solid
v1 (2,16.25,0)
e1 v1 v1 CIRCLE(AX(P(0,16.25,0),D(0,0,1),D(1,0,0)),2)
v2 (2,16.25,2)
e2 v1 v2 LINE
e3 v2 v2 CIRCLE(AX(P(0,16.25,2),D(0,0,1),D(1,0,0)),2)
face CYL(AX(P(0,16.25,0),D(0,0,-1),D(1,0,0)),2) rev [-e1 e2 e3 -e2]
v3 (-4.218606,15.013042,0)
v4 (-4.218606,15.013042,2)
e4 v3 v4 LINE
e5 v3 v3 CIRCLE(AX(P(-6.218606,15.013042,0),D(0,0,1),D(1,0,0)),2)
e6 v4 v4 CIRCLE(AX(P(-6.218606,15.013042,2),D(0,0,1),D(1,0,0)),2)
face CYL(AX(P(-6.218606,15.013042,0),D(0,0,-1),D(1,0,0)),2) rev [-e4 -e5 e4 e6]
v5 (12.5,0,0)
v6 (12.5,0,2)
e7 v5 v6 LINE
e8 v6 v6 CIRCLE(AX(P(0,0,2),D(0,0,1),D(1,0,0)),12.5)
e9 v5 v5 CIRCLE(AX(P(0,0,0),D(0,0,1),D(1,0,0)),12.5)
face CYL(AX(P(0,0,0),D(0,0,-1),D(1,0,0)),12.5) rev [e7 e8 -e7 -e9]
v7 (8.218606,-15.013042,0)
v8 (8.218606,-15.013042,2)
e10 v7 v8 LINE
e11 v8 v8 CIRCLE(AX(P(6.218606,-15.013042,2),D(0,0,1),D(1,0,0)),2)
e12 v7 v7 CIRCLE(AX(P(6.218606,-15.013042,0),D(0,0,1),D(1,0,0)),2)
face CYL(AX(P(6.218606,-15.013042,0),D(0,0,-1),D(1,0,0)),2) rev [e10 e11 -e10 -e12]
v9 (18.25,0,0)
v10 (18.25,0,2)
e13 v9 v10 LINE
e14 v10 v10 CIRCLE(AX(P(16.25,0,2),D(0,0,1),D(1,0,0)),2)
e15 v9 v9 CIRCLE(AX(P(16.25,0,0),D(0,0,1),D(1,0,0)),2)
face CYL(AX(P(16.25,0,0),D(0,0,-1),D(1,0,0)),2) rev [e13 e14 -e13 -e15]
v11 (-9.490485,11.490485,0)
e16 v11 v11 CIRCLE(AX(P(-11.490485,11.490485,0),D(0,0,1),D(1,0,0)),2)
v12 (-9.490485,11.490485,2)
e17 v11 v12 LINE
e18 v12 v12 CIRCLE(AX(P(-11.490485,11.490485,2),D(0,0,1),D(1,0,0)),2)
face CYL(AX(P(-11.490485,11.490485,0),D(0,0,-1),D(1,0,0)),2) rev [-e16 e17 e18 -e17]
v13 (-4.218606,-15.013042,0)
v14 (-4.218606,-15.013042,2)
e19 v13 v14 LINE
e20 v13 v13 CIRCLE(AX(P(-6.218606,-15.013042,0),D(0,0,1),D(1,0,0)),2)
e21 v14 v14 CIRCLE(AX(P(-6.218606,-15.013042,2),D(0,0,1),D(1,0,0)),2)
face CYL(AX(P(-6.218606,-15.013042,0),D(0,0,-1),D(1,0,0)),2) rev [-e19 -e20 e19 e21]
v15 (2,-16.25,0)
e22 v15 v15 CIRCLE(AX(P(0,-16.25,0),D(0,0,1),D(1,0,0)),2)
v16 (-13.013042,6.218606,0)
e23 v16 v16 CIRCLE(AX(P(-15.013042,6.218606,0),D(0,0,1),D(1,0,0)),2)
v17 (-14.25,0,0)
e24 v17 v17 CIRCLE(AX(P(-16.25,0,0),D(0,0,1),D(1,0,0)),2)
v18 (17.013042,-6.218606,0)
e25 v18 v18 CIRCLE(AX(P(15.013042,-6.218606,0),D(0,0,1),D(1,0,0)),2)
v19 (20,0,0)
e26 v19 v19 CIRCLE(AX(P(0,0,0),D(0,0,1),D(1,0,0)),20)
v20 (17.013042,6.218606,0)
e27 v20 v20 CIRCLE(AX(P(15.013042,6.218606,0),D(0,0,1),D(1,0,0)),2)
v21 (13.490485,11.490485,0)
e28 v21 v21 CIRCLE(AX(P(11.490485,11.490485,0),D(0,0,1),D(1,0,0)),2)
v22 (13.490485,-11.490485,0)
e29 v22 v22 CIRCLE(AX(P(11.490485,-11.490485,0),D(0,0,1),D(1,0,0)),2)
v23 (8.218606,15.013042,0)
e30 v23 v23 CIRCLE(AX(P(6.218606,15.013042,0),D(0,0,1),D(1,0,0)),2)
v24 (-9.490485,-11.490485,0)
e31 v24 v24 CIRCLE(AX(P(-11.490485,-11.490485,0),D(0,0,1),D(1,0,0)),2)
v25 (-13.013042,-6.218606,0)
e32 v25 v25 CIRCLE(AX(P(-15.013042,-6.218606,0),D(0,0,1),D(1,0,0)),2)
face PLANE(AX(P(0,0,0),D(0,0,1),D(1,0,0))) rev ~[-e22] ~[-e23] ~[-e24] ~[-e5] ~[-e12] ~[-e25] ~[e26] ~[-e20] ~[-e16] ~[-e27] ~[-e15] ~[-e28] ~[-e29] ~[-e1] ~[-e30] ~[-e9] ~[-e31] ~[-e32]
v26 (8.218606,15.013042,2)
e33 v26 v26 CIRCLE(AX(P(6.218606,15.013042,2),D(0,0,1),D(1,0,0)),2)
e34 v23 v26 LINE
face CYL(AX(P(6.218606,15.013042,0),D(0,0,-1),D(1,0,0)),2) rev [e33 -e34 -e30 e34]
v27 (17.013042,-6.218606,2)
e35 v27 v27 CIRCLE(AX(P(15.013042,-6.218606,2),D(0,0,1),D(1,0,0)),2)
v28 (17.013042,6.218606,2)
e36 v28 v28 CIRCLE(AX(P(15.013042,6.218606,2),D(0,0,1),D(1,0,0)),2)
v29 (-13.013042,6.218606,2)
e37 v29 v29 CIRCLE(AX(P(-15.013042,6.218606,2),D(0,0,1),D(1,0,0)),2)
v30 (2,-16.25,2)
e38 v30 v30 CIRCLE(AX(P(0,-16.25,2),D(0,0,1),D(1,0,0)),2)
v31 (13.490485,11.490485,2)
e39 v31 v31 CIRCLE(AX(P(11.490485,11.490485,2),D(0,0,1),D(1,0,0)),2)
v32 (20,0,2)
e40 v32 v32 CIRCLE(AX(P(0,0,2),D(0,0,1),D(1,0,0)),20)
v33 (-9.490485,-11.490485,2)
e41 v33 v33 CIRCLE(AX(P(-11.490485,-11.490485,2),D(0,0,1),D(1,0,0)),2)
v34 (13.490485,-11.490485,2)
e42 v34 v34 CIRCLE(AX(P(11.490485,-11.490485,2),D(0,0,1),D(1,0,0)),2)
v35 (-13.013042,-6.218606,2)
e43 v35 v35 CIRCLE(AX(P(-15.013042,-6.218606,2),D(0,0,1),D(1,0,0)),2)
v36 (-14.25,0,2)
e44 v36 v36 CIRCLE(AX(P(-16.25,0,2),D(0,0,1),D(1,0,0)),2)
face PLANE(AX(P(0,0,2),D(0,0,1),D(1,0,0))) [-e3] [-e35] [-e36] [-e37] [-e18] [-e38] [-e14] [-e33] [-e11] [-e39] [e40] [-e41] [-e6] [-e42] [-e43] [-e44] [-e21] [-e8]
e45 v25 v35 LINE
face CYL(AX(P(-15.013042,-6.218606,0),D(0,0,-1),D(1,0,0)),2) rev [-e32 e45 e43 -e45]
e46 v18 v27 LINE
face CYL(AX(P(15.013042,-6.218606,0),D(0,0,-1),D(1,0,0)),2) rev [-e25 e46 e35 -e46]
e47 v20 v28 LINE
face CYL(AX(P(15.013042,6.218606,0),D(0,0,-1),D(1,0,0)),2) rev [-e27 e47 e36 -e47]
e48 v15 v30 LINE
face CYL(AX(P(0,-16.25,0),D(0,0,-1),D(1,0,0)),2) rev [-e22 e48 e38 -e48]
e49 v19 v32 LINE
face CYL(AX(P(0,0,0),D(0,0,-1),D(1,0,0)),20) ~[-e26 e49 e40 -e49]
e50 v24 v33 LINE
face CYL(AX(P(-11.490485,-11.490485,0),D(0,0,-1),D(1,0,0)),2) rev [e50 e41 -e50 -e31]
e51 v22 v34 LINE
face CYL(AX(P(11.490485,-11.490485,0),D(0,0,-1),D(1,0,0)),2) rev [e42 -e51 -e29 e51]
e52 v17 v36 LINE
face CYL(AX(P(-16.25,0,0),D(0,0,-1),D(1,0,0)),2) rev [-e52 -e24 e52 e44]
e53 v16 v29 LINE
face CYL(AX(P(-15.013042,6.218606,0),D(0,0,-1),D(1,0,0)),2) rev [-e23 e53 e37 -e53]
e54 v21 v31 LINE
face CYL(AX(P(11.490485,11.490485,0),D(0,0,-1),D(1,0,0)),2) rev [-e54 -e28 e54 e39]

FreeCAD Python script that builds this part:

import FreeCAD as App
import Part
import Sketcher

doc = App.newDocument("Part")
params = doc.addObject("Spreadsheet::Sheet", "Params")
for row, (alias, value) in enumerate([
    ("sketch1_diameter", "40 mm"),
    ("sketch1_diameter2", "4 mm"),
    ("sketch1_diameter3", "25 mm"),
    ("pad1_length", "2 mm"),
], start=1):
    params.set(f"A{row}", alias)
    params.set(f"B{row}", "=" + value)
    params.setAlias(f"B{row}", alias)

body = doc.addObject("PartDesign::Body", "Body")

sketch1 = body.newObject("Sketcher::SketchObject", "Sketch")
sketch1.AttachmentSupport = (doc.getObject("XY_Plane"), [""])
sketch1.MapMode = "FlatFace"
sketch1.addGeometry(Part.Circle(App.Vector(0, 0, 0), App.Vector(0, 0, 1), 20), False)
sketch1.addGeometry(Part.Circle(App.Vector(-11.5, -11.5, 0), App.Vector(0, 0, 1), 2), False)
sketch1.addGeometry(Part.Circle(App.Vector(-6.2, -15, 0), App.Vector(0, 0, 1), 2), False)
sketch1.addGeometry(Part.Circle(App.Vector(-15, -6.2, 0), App.Vector(0, 0, 1), 2), False)
sketch1.addGeometry(Part.Circle(App.Vector(0, -16.2, 0), App.Vector(0, 0, 1), 2), False)
sketch1.addGeometry(Part.Circle(App.Vector(6.2, -15, 0), App.Vector(0, 0, 1), 2), False)
sketch1.addGeometry(Part.Circle(App.Vector(11.5, -11.5, 0), App.Vector(0, 0, 1), 2), False)
sketch1.addGeometry(Part.Circle(App.Vector(15, -6.2, 0), App.Vector(0, 0, 1), 2), False)
sketch1.addGeometry(Part.Circle(App.Vector(-16.2, 0, 0), App.Vector(0, 0, 1), 2), False)
sketch1.addGeometry(Part.Circle(App.Vector(-15, 6.2, 0), App.Vector(0, 0, 1), 2), False)
sketch1.addGeometry(Part.Circle(App.Vector(-11.5, 11.5, 0), App.Vector(0, 0, 1), 2), False)
sketch1.addGeometry(Part.Circle(App.Vector(-6.2, 15, 0), App.Vector(0, 0, 1), 2), False)
sketch1.addGeometry(Part.Circle(App.Vector(0, 0, 0), App.Vector(0, 0, 1), 12.5), False)
sketch1.addGeometry(Part.Circle(App.Vector(16.2, 0, 0), App.Vector(0, 0, 1), 2), False)
sketch1.addGeometry(Part.Circle(App.Vector(15, 6.2, 0), App.Vector(0, 0, 1), 2), False)
sketch1.addGeometry(Part.Circle(App.Vector(0, 16.2, 0), App.Vector(0, 0, 1), 2), False)
sketch1.addGeometry(Part.Circle(App.Vector(6.2, 15, 0), App.Vector(0, 0, 1), 2), False)
sketch1.addGeometry(Part.Circle(App.Vector(11.5, 11.5, 0), App.Vector(0, 0, 1), 2), False)
sketch1.addConstraint(Sketcher.Constraint("Coincident", 0, 3, -1, 1))
sketch1.addConstraint(Sketcher.Constraint("Coincident", 12, 3, -1, 1))
sketch1.addConstraint(Sketcher.Constraint("Equal", 1, 2))
sketch1.addConstraint(Sketcher.Constraint("Equal", 2, 3))
sketch1.addConstraint(Sketcher.Constraint("Equal", 3, 4))
sketch1.addConstraint(Sketcher.Constraint("Equal", 4, 5))
sketch1.addConstraint(Sketcher.Constraint("Equal", 5, 6))
sketch1.addConstraint(Sketcher.Constraint("Equal", 6, 7))
sketch1.addConstraint(Sketcher.Constraint("Equal", 7, 8))
sketch1.addConstraint(Sketcher.Constraint("Equal", 8, 9))
sketch1.addConstraint(Sketcher.Constraint("Equal", 9, 10))
sketch1.addConstraint(Sketcher.Constraint("Equal", 10, 11))
sketch1.addConstraint(Sketcher.Constraint("Equal", 11, 13))
sketch1.addConstraint(Sketcher.Constraint("Equal", 13, 14))
sketch1.addConstraint(Sketcher.Constraint("Equal", 14, 15))
sketch1.addConstraint(Sketcher.Constraint("Equal", 15, 16))
sketch1.addConstraint(Sketcher.Constraint("Equal", 16, 17))
sketch1.addConstraint(Sketcher.Constraint("Symmetric", 7, 3, 9, 3, -1, 1))
sketch1.addConstraint(Sketcher.Constraint("Symmetric", 6, 3, 10, 3, -1, 1))
sketch1.addConstraint(Sketcher.Constraint("Symmetric", 5, 3, 11, 3, -1, 1))
sketch1.addConstraint(Sketcher.Constraint("Symmetric", 8, 3, 13, 3, -1, 1))
sketch1.addConstraint(Sketcher.Constraint("Symmetric", 3, 3, 14, 3, -1, 1))
sketch1.addConstraint(Sketcher.Constraint("Symmetric", 4, 3, 15, 3, -1, 1))
sketch1.addConstraint(Sketcher.Constraint("Symmetric", 2, 3, 16, 3, -1, 1))
sketch1.addConstraint(Sketcher.Constraint("Symmetric", 1, 3, 17, 3, -1, 1))
sketch1.addConstraint(Sketcher.Constraint("Symmetric", 2, 3, 5, 3, -2))
sketch1.addConstraint(Sketcher.Constraint("Symmetric", 1, 3, 6, 3, -2))
sketch1.addConstraint(Sketcher.Constraint("Symmetric", 3, 3, 7, 3, -2))
sketch1.addConstraint(Sketcher.Constraint("PointOnObject", 4, 3, -2))
sketch1.addConstraint(Sketcher.Constraint("PointOnObject", 8, 3, -1))
sketch1.addConstraint(Sketcher.Constraint("Diameter", 0, 40.0))
sketch1.addConstraint(Sketcher.Constraint("Diameter", 1, 4.0))
sketch1.addConstraint(Sketcher.Constraint("Diameter", 12, 25.0))
sketch1.addConstraint(Sketcher.Constraint("DistanceY", 4, 3, -1, 1, 16.25))
sketch1.addConstraint(Sketcher.Constraint("DistanceX", 8, 3, -1, 1, 16.25))
sketch1.addConstraint(Sketcher.Constraint("DistanceX", 1, 3, 2, 3, 5.271879))
sketch1.addConstraint(Sketcher.Constraint("DistanceY", 1, 3, 3, 3, 5.271879))
sketch1.addConstraint(Sketcher.Constraint("DistanceX", 1, 3, 5, 3, 17.709091))
sketch1.addConstraint(Sketcher.Constraint("DistanceX", 3, 3, 5, 3, 21.231648))
sketch1.addConstraint(Sketcher.Constraint("DistanceY", 1, 3, 9, 3, 17.709091))
sketch1.addConstraint(Sketcher.Constraint("DistanceY", 2, 3, 9, 3, 21.231648))
sketch1.setExpression("Constraints[30]", "Params.sketch1_diameter")
sketch1.setExpression("Constraints[31]", "Params.sketch1_diameter2")
sketch1.setExpression("Constraints[32]", "Params.sketch1_diameter3")
pad1 = body.newObject("PartDesign::Pad", "Pad")
pad1.Profile = sketch1
pad1.setExpression("Length", "Params.pad1_length")

doc.recompute()
